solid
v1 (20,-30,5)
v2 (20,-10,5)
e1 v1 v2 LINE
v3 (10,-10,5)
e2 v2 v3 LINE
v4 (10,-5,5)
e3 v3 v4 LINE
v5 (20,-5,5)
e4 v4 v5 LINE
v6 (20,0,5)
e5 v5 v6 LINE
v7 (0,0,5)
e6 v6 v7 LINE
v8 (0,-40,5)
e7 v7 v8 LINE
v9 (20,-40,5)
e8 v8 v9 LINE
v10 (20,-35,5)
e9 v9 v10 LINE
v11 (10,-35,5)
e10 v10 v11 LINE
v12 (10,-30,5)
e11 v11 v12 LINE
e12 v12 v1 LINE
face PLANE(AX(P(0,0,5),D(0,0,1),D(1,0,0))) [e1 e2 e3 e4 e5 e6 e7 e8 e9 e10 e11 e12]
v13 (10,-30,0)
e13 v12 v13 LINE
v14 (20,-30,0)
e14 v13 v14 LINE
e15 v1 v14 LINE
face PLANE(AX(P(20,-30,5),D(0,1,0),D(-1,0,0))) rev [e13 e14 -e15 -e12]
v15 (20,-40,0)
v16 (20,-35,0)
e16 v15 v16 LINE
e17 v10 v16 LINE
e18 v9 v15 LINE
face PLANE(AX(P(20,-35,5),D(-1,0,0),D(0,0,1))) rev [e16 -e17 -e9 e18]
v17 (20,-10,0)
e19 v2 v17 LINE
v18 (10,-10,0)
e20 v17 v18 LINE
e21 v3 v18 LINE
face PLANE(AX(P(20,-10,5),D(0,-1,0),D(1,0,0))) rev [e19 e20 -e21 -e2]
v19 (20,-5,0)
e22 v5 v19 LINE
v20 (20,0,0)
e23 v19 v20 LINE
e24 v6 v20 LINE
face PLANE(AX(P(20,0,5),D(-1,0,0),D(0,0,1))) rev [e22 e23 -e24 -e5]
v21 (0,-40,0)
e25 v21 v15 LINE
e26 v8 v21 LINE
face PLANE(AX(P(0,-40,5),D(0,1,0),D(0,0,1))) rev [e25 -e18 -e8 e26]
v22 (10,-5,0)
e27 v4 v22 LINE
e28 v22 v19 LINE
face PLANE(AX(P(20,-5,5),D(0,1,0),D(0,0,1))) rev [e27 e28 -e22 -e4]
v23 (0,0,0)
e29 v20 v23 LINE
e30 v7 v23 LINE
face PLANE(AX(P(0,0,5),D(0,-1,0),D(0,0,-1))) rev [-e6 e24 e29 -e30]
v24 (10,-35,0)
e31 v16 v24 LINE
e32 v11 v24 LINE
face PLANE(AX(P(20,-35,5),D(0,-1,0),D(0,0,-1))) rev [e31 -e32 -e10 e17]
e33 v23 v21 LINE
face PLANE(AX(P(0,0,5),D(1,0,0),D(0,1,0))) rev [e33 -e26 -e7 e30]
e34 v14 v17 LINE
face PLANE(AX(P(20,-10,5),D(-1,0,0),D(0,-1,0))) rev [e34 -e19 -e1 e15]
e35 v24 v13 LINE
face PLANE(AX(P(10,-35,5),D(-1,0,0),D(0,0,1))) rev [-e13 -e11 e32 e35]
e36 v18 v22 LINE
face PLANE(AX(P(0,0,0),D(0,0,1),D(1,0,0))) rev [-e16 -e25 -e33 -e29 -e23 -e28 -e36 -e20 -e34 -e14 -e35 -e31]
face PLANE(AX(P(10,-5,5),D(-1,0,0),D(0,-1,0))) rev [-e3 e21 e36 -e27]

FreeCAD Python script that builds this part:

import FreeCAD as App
import Part
import Sketcher
from FreeCAD import Vector

doc = App.newDocument("Part")
params = doc.addObject("Spreadsheet::Sheet", "Params")
for row, (alias, value) in enumerate([
    ("sketch1_width", "10 mm"),
    ("sketch1_width2", "20 mm"),
    ("sketch1_height", "5 mm"),
    ("pad1_length", "5 mm"),
], start=1):
    params.set(f"A{row}", alias)
    params.set(f"B{row}", "=" + value)
    params.setAlias(f"B{row}", alias)

body = doc.addObject("PartDesign::Body", "Body")

sketch1 = doc.addObject("Sketcher::SketchObject", "Sketch")
body.addObject(sketch1)
sketch1.AttachmentSupport = (doc.XY_Plane, [""])
sketch1.MapMode = "FlatFace"
sketch1.addGeometry(Part.LineSegment(Vector(20, -30, 0), Vector(20, -10, 0)), False)
sketch1.addGeometry(Part.LineSegment(Vector(20, -10, 0), Vector(10, -10, 0)), False)
sketch1.addGeometry(Part.LineSegment(Vector(10, -10, 0), Vector(10, -5, 0)), False)
sketch1.addGeometry(Part.LineSegment(Vector(10, -5, 0), Vector(20, -5, 0)), False)
sketch1.addGeometry(Part.LineSegment(Vector(20, -5, 0), Vector(20, 0, 0)), False)
sketch1.addGeometry(Part.LineSegment(Vector(20, 0, 0), Vector(0, 0, 0)), False)
sketch1.addGeometry(Part.LineSegment(Vector(0, 0, 0), Vector(0, -40, 0)), False)
sketch1.addGeometry(Part.LineSegment(Vector(0, -40, 0), Vector(20, -40, 0)), False)
sketch1.addGeometry(Part.LineSegment(Vector(20, -40, 0), Vector(20, -35, 0)), False)
sketch1.addGeometry(Part.LineSegment(Vector(20, -35, 0), Vector(10, -35, 0)), False)
sketch1.addGeometry(Part.LineSegment(Vector(10, -35, 0), Vector(10, -30, 0)), False)
sketch1.addGeometry(Part.LineSegment(Vector(10, -30, 0), Vector(20, -30, 0)), False)
sketch1.addConstraint(Sketcher.Constraint("Coincident", 0, 2, 1, 1))
sketch1.addConstraint(Sketcher.Constraint("Coincident", 1, 2, 2, 1))
sketch1.addConstraint(Sketcher.Constraint("Coincident", 2, 2, 3, 1))
sketch1.addConstraint(Sketcher.Constraint("Coincident", 3, 2, 4, 1))
sketch1.addConstraint(Sketcher.Constraint("Coincident", 4, 2, 5, 1))
sketch1.addConstraint(Sketcher.Constraint("Coincident", 5, 2, 6, 1))
sketch1.addConstraint(Sketcher.Constraint("Coincident", 6, 2, 7, 1))
sketch1.addConstraint(Sketcher.Constraint("Coincident", 7, 2, 8, 1))
sketch1.addConstraint(Sketcher.Constraint("Coincident", 8, 2, 9, 1))
sketch1.addConstraint(Sketcher.Constraint("Coincident", 9, 2, 10, 1))
sketch1.addConstraint(Sketcher.Constraint("Coincident", 10, 2, 11, 1))
sketch1.addConstraint(Sketcher.Constraint("Coincident", 11, 2, 0, 1))
sketch1.addConstraint(Sketcher.Constraint("Vertical", 0))
sketch1.addConstraint(Sketcher.Constraint("Horizontal", 1))
sketch1.addConstraint(Sketcher.Constraint("Vertical", 2))
sketch1.addConstraint(Sketcher.Constraint("Horizontal", 3))
sketch1.addConstraint(Sketcher.Constraint("Vertical", 4))
sketch1.addConstraint(Sketcher.Constraint("Horizontal", 5))
sketch1.addConstraint(Sketcher.Constraint("Vertical", 6))
sketch1.addConstraint(Sketcher.Constraint("Horizontal", 7))
sketch1.addConstraint(Sketcher.Constraint("Vertical", 8))
sketch1.addConstraint(Sketcher.Constraint("Horizontal", 9))
sketch1.addConstraint(Sketcher.Constraint("Vertical", 10))
sketch1.addConstraint(Sketcher.Constraint("Horizontal", 11))
sketch1.addConstraint(Sketcher.Constraint("Coincident", 5, 2, -1, 1))
sketch1.addConstraint(Sketcher.Constraint("Vertical", 0, 2, 3, 2))
sketch1.addConstraint(Sketcher.Constraint("Vertical", 4, 2, 7, 2))
sketch1.addConstraint(Sketcher.Constraint("Vertical", 2, 2, 9, 2))
sketch1.addConstraint(Sketcher.Constraint("Equal", 7, 0))
sketch1.addConstraint(Sketcher.Constraint("Equal", 2, 4))
sketch1.addConstraint(Sketcher.Constraint("Equal", 4, 8))
sketch1.addConstraint(Sketcher.Constraint("Equal", 8, 10))
sketch1.addConstraint(Sketcher.Constraint("DistanceX", 1, 2, 1, 1, 10.0))
sketch1.addConstraint(Sketcher.Constraint("DistanceX", 5, 2, 5, 1, 20.0))
sketch1.addConstraint(Sketcher.Constraint("DistanceY", 2, 1, 2, 2, 5.0))
sketch1.setExpression("Constraints[32]", "Params.sketch1_width")
sketch1.setExpression("Constraints[33]", "Params.sketch1_width2")
sketch1.setExpression("Constraints[34]", "Params.sketch1_height")
pad1 = doc.addObject("PartDesign::Pad", "Pad")
body.addObject(pad1)
pad1.Profile = sketch1
pad1.setExpression("Length", "Params.pad1_length")

doc.recompute()
